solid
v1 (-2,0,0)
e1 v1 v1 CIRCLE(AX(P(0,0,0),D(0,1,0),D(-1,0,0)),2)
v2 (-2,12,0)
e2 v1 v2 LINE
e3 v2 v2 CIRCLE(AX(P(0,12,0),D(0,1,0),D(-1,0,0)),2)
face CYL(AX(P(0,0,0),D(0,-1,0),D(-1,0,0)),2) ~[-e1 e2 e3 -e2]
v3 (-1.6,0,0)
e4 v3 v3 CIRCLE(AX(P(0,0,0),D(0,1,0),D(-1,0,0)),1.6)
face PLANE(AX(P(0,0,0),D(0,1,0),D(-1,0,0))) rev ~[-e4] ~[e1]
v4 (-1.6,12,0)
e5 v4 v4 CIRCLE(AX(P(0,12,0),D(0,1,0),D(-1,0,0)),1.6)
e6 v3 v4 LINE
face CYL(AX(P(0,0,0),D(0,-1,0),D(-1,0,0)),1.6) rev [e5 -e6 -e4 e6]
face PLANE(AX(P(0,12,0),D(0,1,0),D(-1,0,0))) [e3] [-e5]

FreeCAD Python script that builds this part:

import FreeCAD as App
import Part
import Sketcher
from FreeCAD import Vector
Q = App.Units.Quantity

doc = App.newDocument("Part")
body = doc.addObject("PartDesign::Body", "Body")

# Sketch on XZ plane
sketch1 = body.newObject("Sketcher::SketchObject", "Sketch")
sketch1.AttachmentSupport = (doc.getObject("XZ_Plane"), [""])
sketch1.MapMode = "FlatFace"
sketch1.addGeometry(Part.Circle(Vector(0, 0, 0), Vector(0, 0, 1), 2), False)
sketch1.addGeometry(Part.Circle(Vector(0, 0, 0), Vector(0, 0, 1), 1.6), False)
sketch1.addConstraint(Sketcher.Constraint("Coincident", 0, 3, -1, 1))
sketch1.addConstraint(Sketcher.Constraint("Coincident", 1, 3, -1, 1))
sketch1.addConstraint(Sketcher.Constraint("Diameter", 0, Q("4 mm")))
sketch1.addConstraint(Sketcher.Constraint("Diameter", 1, Q("3.2 mm")))
pad1 = body.newObject("PartDesign::Pad", "Pad")
pad1.Profile = sketch1
pad1.Length = 12
pad1.Reversed = True

doc.recompute()
